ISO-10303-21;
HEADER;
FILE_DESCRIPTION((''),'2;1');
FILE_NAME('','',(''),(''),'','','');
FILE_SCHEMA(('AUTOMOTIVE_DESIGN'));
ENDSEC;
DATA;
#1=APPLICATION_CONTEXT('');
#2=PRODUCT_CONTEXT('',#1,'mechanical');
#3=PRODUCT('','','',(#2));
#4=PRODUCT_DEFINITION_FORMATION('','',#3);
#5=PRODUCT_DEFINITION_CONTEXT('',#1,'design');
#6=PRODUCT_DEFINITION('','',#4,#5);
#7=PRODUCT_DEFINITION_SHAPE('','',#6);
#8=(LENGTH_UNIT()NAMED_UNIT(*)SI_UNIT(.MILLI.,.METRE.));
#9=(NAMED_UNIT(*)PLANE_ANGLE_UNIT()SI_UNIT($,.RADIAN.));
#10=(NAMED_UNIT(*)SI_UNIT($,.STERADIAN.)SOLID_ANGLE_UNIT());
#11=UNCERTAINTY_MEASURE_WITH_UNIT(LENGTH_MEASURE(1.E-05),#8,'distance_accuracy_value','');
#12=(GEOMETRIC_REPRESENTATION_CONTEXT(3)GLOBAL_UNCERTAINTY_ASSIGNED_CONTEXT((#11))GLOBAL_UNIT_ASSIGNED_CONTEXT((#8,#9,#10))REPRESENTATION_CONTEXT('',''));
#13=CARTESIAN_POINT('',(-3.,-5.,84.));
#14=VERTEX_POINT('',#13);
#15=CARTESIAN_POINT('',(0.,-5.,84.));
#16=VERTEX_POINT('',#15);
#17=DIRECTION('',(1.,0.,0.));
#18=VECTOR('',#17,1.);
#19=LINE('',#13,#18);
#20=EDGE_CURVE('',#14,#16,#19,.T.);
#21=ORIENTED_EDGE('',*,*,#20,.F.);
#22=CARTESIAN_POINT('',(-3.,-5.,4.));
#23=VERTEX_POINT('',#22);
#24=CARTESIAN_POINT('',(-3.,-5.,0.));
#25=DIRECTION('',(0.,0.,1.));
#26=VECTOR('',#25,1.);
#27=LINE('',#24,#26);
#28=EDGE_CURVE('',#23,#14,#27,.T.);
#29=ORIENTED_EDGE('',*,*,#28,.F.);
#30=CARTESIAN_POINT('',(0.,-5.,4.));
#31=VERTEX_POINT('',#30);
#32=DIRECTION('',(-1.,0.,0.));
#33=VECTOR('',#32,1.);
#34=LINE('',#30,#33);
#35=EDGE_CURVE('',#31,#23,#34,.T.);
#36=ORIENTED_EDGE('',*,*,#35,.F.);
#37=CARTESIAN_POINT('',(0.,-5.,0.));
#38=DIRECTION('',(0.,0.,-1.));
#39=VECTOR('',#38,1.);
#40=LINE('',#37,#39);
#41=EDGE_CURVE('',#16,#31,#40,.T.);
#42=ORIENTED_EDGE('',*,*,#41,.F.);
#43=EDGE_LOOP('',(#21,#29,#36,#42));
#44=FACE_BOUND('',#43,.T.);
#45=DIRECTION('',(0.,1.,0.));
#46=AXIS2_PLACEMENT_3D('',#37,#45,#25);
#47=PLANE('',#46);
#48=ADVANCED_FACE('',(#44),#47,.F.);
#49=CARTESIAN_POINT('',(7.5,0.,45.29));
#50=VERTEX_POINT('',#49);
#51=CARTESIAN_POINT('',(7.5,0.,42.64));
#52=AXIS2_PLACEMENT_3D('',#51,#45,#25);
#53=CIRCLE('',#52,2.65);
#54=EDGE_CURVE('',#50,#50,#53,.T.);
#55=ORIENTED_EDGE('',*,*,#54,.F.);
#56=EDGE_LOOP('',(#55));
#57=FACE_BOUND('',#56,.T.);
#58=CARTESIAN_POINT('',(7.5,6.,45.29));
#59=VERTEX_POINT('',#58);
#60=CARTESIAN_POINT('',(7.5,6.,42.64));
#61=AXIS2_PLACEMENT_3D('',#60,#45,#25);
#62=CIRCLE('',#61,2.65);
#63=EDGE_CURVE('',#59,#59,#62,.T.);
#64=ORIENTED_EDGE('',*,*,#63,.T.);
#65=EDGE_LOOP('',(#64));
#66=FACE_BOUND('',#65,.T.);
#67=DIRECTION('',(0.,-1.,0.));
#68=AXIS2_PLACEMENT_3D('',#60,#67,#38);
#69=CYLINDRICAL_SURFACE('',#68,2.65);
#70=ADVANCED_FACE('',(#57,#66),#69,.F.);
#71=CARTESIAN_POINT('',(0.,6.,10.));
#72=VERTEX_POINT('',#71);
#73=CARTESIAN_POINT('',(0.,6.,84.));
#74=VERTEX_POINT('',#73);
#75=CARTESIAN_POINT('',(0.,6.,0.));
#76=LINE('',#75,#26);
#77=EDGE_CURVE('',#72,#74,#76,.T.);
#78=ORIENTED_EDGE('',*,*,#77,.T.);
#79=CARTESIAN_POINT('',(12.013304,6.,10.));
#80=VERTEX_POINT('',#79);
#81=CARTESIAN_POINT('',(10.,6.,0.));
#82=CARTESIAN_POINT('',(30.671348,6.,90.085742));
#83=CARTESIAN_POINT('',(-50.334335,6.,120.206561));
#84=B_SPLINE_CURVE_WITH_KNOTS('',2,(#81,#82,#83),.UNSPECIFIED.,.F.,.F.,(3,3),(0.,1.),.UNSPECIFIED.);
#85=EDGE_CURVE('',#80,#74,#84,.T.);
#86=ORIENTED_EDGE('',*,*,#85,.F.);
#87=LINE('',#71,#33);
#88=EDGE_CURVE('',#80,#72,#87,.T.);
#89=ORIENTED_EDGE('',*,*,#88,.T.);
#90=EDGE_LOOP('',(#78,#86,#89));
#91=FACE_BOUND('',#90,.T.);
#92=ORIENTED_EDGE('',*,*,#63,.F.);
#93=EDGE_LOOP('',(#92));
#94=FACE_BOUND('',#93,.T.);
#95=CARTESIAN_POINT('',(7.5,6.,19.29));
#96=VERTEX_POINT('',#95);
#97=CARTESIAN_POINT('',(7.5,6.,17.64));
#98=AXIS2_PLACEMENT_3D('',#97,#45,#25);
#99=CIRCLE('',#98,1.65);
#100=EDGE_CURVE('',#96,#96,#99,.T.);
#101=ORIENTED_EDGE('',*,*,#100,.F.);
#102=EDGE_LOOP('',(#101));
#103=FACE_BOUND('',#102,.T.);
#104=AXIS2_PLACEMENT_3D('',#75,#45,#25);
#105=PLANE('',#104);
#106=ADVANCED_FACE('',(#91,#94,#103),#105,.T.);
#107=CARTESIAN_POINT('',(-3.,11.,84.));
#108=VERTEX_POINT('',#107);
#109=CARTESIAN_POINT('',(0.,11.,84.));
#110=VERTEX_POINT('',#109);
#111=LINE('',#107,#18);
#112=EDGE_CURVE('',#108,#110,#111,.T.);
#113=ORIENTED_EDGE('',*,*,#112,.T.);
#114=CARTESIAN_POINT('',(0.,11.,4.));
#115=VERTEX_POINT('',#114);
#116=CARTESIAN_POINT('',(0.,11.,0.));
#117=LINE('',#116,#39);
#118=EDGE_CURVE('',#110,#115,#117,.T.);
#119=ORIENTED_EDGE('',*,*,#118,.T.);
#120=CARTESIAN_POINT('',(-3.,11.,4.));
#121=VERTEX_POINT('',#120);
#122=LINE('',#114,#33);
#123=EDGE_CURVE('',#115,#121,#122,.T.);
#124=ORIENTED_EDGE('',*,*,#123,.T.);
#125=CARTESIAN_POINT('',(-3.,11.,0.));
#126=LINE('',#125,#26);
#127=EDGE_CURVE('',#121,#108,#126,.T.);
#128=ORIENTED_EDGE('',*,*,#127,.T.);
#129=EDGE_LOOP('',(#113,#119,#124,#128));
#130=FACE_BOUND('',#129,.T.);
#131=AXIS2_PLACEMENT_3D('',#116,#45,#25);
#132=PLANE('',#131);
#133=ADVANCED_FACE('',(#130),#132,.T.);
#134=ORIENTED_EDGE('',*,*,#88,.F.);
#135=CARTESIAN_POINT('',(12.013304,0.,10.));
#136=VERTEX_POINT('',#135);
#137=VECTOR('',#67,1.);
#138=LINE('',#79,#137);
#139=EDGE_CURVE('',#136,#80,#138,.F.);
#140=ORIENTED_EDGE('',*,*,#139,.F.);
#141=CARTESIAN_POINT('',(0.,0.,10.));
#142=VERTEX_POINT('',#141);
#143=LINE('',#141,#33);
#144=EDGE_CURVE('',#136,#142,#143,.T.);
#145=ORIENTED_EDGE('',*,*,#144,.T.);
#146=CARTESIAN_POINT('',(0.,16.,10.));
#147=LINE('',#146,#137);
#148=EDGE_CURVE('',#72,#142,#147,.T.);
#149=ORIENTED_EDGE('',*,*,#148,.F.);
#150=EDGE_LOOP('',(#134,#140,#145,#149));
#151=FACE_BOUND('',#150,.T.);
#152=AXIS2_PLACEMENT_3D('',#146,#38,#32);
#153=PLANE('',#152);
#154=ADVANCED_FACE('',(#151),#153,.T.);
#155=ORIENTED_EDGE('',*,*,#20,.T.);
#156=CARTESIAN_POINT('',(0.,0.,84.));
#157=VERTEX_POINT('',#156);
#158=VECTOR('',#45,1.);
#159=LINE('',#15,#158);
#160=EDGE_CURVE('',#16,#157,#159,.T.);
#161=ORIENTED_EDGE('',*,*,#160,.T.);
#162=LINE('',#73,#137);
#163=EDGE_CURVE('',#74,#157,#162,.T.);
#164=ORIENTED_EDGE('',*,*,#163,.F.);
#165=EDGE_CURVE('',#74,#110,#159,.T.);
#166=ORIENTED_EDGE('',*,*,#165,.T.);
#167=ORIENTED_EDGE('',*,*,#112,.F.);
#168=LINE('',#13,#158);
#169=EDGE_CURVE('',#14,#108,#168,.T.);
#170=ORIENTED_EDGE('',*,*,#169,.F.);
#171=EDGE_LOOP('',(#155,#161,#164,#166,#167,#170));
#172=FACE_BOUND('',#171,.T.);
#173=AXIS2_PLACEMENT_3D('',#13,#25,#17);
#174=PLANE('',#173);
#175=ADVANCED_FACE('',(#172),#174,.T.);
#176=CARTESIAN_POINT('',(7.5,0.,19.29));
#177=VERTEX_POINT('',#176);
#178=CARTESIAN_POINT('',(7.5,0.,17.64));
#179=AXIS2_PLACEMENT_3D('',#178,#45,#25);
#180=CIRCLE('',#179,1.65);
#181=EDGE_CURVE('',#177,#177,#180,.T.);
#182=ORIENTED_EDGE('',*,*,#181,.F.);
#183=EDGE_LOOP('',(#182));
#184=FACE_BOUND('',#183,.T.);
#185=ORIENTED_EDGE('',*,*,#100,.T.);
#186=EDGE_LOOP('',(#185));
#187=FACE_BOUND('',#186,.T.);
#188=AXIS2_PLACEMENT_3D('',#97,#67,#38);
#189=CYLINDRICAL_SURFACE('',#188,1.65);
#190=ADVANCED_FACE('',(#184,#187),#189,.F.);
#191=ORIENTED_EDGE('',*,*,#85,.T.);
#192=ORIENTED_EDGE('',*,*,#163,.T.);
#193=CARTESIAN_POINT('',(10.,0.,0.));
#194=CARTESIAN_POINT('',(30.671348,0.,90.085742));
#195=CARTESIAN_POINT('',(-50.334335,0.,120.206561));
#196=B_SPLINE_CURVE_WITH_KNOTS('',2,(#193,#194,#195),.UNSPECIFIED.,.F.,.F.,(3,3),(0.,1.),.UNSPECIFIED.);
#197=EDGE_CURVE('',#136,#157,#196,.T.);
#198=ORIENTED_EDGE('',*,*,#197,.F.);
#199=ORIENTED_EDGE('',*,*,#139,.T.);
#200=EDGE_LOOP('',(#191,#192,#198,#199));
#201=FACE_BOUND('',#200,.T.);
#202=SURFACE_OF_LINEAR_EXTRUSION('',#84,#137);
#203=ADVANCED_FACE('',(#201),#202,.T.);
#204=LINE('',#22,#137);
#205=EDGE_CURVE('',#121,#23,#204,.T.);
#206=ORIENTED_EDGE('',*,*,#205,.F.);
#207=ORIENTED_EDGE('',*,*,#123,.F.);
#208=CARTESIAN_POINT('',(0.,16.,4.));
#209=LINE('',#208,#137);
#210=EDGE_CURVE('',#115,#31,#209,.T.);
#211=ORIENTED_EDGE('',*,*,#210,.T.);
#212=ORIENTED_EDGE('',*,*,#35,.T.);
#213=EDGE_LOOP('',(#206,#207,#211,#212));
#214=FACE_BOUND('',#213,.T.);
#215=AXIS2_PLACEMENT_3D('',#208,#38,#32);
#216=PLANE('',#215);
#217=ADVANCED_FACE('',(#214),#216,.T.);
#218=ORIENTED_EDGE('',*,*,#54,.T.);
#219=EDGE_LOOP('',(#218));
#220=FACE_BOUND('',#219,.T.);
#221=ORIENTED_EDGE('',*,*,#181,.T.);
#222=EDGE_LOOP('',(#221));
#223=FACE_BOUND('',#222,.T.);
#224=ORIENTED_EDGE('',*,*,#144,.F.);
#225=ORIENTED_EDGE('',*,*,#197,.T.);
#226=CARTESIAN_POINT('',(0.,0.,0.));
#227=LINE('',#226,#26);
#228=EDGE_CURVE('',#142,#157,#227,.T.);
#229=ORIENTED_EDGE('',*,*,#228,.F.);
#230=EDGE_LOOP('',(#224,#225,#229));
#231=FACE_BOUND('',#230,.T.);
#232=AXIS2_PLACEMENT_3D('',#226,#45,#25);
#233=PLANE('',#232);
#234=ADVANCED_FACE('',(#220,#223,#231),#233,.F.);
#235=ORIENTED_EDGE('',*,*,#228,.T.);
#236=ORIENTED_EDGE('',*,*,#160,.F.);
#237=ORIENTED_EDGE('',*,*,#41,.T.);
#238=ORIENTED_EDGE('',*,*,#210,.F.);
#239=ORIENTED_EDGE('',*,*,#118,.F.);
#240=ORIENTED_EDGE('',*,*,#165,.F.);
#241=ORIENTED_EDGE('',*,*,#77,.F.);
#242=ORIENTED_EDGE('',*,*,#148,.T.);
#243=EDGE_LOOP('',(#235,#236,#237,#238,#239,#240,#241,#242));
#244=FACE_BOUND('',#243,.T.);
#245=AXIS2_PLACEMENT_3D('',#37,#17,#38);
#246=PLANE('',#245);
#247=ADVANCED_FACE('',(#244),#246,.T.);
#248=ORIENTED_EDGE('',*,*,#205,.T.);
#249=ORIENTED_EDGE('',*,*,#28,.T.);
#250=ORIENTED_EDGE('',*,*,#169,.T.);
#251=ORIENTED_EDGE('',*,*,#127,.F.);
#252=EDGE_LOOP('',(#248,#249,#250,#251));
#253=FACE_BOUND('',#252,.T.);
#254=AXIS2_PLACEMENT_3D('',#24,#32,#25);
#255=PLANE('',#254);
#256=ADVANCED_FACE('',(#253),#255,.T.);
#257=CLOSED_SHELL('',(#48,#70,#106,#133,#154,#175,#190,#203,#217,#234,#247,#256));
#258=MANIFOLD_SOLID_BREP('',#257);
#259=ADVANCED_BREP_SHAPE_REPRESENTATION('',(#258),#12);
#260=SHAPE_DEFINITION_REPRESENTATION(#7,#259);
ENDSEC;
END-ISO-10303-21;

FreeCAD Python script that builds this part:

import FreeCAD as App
import Part
import Sketcher

V = App.Vector


def add_polygon(sketch, points):
    """Adds a closed chain of lines whose ends are joined by coincident constraints."""
    first, n = sketch.GeometryCount, len(points)
    for a, b in zip(points, points[1:] + points[:1]):
        sketch.addGeometry(Part.LineSegment(App.Vector(*a, 0), App.Vector(*b, 0)), False)
    for i in range(n):
        sketch.addConstraint(Sketcher.Constraint("Coincident", first + i, 2, first + (i + 1) % n, 1))

doc = App.newDocument("Part")
body = doc.addObject("PartDesign::Body", "Body")

sketch1 = body.newObject("Sketcher::SketchObject", "Sketch")
sketch1.AttachmentSupport = (doc.getObject("XZ_Plane"), [""])
sketch1.MapMode = "FlatFace"
sketch1.addGeometry([
    Part.LineSegment(V(10, 0, 0), V(0, 0, 0)),
    Part.LineSegment(V(0, 0, 0), V(0, 84, 0)),
    Part.BSplineCurve([V(10, 0, 0), V(21.928321, 51.983626, 0), V(0, 84, 0)], [3, 3], [0, 0.5770461], False, 2, [1, 1, 1], False),
    Part.Circle(V(7.5, 42.64, 0), V(0, 0, 1), 2.65),
    Part.Circle(V(7.5, 17.64, 0), V(0, 0, 1), 1.65),
], False)
sketch1.addConstraint([
    Sketcher.Constraint("Block", 2),
    Sketcher.Constraint("Coincident", 0, 2, 1, 1),
    Sketcher.Constraint("Coincident", 1, 2, 2, 2),
    Sketcher.Constraint("Coincident", 2, 1, 0, 1),
    Sketcher.Constraint("Horizontal", 0),
    Sketcher.Constraint("Vertical", 1),
    Sketcher.Constraint("Vertical", 3, 3, 4, 3),
    Sketcher.Constraint("Diameter", 3, 5.3),
    Sketcher.Constraint("Diameter", 4, 3.3),
    Sketcher.Constraint("DistanceY", 4, 3, 3, 3, 25.0),
    Sketcher.Constraint("DistanceX", -1, 1, 3, 3, 7.5),
    Sketcher.Constraint("DistanceY", -1, 1, 3, 3, 42.64),
])
pad1 = body.newObject("PartDesign::Pad", "Pad")
pad1.Profile = sketch1
pad1.Length = 6
pad1.Reversed = True

sketch2 = body.newObject("Sketcher::SketchObject", "Sketch001")
sketch2.AttachmentSupport = (doc.getObject("XZ_Plane"), [""])
sketch2.MapMode = "FlatFace"
sketch2.AttachmentOffset = App.Placement(V(0, 0, -6), App.Rotation())
add_polygon(sketch2, [(-3, 0), (-3, 84), (0, 84), (0, 0)])
sketch2.addConstraint([
    Sketcher.Constraint("Vertical", 0),
    Sketcher.Constraint("Horizontal", 1),
    Sketcher.Constraint("Vertical", 2),
    Sketcher.Constraint("Horizontal", 3),
    Sketcher.Constraint("Coincident", 2, 2, -1, 1),
    Sketcher.Constraint("DistanceX", 1, 1, 1, 2, 3.0),
    Sketcher.Constraint("DistanceY", 0, 1, 0, 2, 84.0),
])
pad2 = body.newObject("PartDesign::Pad", "Pad001")
pad2.Profile = sketch2
pad2.Type = "TwoLengths"
pad2.Length = 5
pad2.Length2 = 11
pad2.Reversed = True

sketch3 = body.newObject("Sketcher::SketchObject", "Sketch002")
sketch3.AttachmentSupport = (doc.getObject("XZ_Plane"), [""])
sketch3.MapMode = "FlatFace"
sketch3.AttachmentOffset = App.Placement(V(0, 0, -6), App.Rotation())
add_polygon(sketch3, [(24, 0), (-3.9, 0), (-3.9, 4), (0, 4), (0, 10), (24, 10)])
sketch3.addConstraint([
    Sketcher.Constraint("Horizontal", 0),
    Sketcher.Constraint("Vertical", 1),
    Sketcher.Constraint("Horizontal", 2),
    Sketcher.Constraint("Vertical", 3),
    Sketcher.Constraint("Horizontal", 4),
    Sketcher.Constraint("Vertical", 5),
    Sketcher.Constraint("PointOnObject", 0, 2, -1),
    Sketcher.Constraint("PointOnObject", 2, 2, -2),
    Sketcher.Constraint("DistanceY", 1, 1, 1, 2, 4.0),
    Sketcher.Constraint("DistanceY", 3, 1, 3, 2, 6.0),
    Sketcher.Constraint("DistanceX", 0, 2, 0, 1, 27.853899),
    Sketcher.Constraint("DistanceX", 2, 1, 2, 2, 3.872725),
])
pocket1 = body.newObject("PartDesign::Pocket", "Pocket")
pocket1.Profile = sketch3
pocket1.Type = "ThroughAll"
pocket1.Midplane = True

doc.recompute()
